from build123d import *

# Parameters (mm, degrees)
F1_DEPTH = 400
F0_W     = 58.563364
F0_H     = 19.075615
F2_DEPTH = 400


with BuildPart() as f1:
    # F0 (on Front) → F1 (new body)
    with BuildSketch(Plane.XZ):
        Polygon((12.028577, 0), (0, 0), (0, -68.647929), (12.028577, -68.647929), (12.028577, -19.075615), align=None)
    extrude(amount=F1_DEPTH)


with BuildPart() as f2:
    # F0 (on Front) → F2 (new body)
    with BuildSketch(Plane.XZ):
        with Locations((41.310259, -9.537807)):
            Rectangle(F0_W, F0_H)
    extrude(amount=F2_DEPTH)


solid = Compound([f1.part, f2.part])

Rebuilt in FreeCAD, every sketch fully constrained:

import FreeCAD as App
import Part
import Sketcher


def add_polygon(sketch, points):
    """Adds a closed chain of lines whose ends are joined by coincident constraints."""
    first, n = sketch.GeometryCount, len(points)
    for a, b in zip(points, points[1:] + points[:1]):
        sketch.addGeometry(Part.LineSegment(App.Vector(*a, 0), App.Vector(*b, 0)), False)
    for i in range(n):
        sketch.addConstraint(Sketcher.Constraint("Coincident", first + i, 2, first + (i + 1) % n, 1))

doc = App.newDocument("Part")
body = doc.addObject("PartDesign::Body", "Body")

# Sketch on XZ plane
sketch1 = body.newObject("Sketcher::SketchObject", "Sketch")
sketch1.AttachmentSupport = (doc.getObject("XZ_Plane"), [""])
sketch1.MapMode = "FlatFace"
add_polygon(sketch1, [(12, 0), (0, 0), (0, -69), (12, -69)])  # lines 0-3
sketch1.addConstraint([
    Sketcher.Constraint("Horizontal", 0),
    Sketcher.Constraint("Vertical", 1),
    Sketcher.Constraint("Horizontal", 2),
    Sketcher.Constraint("Vertical", 3),
    Sketcher.Constraint("Coincident", 0, 2, -1, 1),
    Sketcher.Constraint("DistanceY", 1, 2, 1, 1, 68.647929),
    Sketcher.Constraint("DistanceX", 0, 2, 0, 1, 12.028577),
])
pad1 = body.newObject("PartDesign::Pad", "Pad")
pad1.Profile = sketch1
pad1.Length = 400
body2 = doc.addObject("PartDesign::Body", "Body001")

# Sketch on XZ plane
sketch2 = body2.newObject("Sketcher::SketchObject", "Sketch001")
sketch2.AttachmentSupport = (doc.getObject("XZ_Plane001"), [""])
sketch2.MapMode = "FlatFace"
add_polygon(sketch2, [(12, 0), (12, -19), (71, -19), (71, 0)])  # lines 0-3
sketch2.addConstraint([
    Sketcher.Constraint("Vertical", 0),
    Sketcher.Constraint("Horizontal", 1),
    Sketcher.Constraint("Vertical", 2),
    Sketcher.Constraint("Horizontal", 3),
    Sketcher.Constraint("PointOnObject", 2, 2, -1),
    Sketcher.Constraint("DistanceX", 1, 1, 1, 2, 58.563364),
    Sketcher.Constraint("DistanceY", 0, 2, 0, 1, 19.075615),
    Sketcher.Constraint("DistanceX", -1, 1, 1, 2, 70.591941),
])
pad2 = body2.newObject("PartDesign::Pad", "Pad001")
pad2.Profile = sketch2
pad2.Length = 400

doc.recompute()
